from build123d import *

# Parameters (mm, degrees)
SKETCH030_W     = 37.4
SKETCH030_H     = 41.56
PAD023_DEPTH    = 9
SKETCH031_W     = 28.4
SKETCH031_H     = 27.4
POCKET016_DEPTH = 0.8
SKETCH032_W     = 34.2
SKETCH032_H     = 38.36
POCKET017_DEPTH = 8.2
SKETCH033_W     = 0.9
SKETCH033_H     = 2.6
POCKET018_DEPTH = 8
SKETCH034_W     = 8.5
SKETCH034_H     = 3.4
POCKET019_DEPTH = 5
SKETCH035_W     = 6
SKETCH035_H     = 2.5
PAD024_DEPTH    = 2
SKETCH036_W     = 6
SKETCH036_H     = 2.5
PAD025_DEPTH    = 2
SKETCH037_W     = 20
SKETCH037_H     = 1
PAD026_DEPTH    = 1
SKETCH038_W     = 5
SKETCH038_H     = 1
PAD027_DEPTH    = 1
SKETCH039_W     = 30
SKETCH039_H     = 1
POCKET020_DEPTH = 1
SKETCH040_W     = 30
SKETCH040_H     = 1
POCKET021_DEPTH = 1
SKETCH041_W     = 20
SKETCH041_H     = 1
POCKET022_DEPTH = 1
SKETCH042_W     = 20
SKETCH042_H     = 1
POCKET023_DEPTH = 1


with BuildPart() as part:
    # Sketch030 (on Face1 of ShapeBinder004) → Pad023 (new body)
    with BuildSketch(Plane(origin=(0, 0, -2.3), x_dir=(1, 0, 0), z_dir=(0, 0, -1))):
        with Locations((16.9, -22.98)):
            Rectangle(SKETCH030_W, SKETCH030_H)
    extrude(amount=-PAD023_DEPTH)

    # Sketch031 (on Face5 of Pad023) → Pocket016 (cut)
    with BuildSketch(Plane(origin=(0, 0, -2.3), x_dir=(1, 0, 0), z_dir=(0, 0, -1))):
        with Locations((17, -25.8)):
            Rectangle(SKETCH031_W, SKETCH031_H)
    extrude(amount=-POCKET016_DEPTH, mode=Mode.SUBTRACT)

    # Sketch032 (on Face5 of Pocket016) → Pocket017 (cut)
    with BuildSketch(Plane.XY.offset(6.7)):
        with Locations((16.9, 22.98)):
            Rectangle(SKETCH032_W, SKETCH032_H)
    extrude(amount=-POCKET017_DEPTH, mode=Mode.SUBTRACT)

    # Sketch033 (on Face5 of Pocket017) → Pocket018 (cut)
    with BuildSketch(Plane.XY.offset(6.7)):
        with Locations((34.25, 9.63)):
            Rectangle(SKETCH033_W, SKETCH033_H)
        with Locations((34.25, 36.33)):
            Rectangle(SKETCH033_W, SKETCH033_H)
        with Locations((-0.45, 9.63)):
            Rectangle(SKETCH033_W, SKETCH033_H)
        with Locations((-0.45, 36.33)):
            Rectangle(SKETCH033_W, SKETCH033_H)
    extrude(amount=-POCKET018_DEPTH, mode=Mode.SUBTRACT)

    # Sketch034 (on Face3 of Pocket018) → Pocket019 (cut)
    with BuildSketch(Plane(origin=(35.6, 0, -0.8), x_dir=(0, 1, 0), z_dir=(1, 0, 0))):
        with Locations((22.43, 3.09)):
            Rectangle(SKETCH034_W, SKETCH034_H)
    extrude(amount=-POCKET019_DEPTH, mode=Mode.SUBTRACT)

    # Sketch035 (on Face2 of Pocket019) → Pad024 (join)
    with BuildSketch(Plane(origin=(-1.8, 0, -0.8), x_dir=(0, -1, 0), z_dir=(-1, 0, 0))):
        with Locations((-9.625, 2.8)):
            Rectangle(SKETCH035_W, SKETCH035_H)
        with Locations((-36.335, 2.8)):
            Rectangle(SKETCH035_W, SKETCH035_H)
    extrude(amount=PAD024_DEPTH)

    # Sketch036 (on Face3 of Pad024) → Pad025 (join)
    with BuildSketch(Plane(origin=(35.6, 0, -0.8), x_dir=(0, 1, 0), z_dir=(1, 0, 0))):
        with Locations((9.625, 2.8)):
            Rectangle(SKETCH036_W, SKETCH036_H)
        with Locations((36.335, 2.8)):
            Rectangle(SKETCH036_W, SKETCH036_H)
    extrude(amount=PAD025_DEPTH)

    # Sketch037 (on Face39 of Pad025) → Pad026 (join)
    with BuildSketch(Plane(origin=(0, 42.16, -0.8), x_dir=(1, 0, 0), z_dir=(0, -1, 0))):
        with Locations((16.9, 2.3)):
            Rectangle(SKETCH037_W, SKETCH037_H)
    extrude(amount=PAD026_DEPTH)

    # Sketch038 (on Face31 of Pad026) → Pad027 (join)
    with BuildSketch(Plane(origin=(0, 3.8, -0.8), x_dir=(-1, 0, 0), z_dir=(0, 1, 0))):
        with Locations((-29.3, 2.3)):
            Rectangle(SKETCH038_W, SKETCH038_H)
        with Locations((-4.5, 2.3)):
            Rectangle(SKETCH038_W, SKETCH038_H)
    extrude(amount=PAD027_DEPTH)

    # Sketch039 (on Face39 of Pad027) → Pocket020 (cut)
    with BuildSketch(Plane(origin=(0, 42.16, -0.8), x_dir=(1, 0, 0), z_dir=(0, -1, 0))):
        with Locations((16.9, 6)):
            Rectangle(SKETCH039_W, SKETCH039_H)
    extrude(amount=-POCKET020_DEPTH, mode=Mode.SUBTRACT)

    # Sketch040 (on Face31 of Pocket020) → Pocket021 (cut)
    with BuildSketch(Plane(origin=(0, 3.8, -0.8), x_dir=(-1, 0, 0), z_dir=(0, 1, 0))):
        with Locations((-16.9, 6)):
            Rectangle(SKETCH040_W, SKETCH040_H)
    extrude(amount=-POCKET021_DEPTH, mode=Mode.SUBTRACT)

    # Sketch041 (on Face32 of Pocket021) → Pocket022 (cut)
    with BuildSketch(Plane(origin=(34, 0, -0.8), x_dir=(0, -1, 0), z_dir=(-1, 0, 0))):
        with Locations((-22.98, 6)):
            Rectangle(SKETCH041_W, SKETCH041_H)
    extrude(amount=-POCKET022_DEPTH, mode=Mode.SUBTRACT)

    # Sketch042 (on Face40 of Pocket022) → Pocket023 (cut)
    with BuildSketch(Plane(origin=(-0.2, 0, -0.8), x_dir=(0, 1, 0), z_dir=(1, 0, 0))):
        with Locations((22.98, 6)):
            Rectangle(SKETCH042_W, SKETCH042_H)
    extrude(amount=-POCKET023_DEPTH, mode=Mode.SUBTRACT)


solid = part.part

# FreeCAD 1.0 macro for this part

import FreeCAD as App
import Part
import Sketcher
from FreeCAD import Vector


def add_polygon(sketch, points):
    """Adds a closed chain of lines whose ends are joined by coincident constraints."""
    first, n = sketch.GeometryCount, len(points)
    for a, b in zip(points, points[1:] + points[:1]):
        sketch.addGeometry(Part.LineSegment(App.Vector(*a, 0), App.Vector(*b, 0)), False)
    for i in range(n):
        sketch.addConstraint(Sketcher.Constraint("Coincident", first + i, 2, first + (i + 1) % n, 1))

doc = App.newDocument("Part")
params = doc.addObject("Spreadsheet::Sheet", "Params")
for row, (alias, value) in enumerate([
    ("sketch1_width", "37.4 mm"),
    ("sketch1_height", "41.56 mm"),
    ("pad1_length", "9 mm"),
    ("sketch2_width", "28.4 mm"),
    ("sketch2_height", "27.4 mm"),
    ("pocket1_length", "0.8 mm"),
    ("sketch3_width", "34.2 mm"),
    ("sketch3_height", "38.36 mm"),
    ("pocket2_length", "8.2 mm"),
    ("sketch4_width", "0.9 mm"),
    ("sketch4_height", "2.6 mm"),
    ("pocket3_length", "8 mm"),
    ("sketch5_width", "8.5 mm"),
    ("sketch5_height", "3.4 mm"),
    ("pocket4_length", "5 mm"),
    ("sketch6_width", "6 mm"),
    ("sketch6_height", "2.5 mm"),
    ("pad2_length", "2 mm"),
    ("sketch7_width", "6 mm"),
    ("sketch7_height", "2.5 mm"),
    ("pad3_length", "2 mm"),
    ("sketch8_width", "20 mm"),
    ("sketch8_height", "1 mm"),
    ("pad4_length", "1 mm"),
    ("sketch9_width", "5 mm"),
    ("sketch9_height", "1 mm"),
    ("pad5_length", "1 mm"),
    ("sketch10_width", "30 mm"),
    ("sketch10_height", "1 mm"),
    ("pocket5_length", "1 mm"),
    ("sketch11_width", "30 mm"),
    ("sketch11_height", "1 mm"),
    ("pocket6_length", "1 mm"),
    ("sketch12_width", "20 mm"),
    ("sketch12_height", "1 mm"),
    ("pocket7_length", "1 mm"),
    ("sketch13_width", "20 mm"),
    ("sketch13_height", "1 mm"),
    ("pocket8_length", "1 mm"),
], start=1):
    params.set(f"A{row}", alias)
    params.set(f"B{row}", "=" + value)
    params.setAlias(f"B{row}", alias)

body = doc.addObject("PartDesign::Body", "Body")

# Sketch on XY plane
sketch1 = body.newObject("Sketcher::SketchObject", "Sketch")
sketch1.AttachmentSupport = (doc.getObject("XY_Plane"), [""])
sketch1.MapMode = "FlatFace"
sketch1.AttachmentOffset = App.Placement(Vector(0, 0, -2.3), App.Rotation())
add_polygon(sketch1, [(-2, 2), (-2, 44), (36, 44), (36, 2)])  # lines 0-3
sketch1.addConstraint([
    Sketcher.Constraint("Vertical", 0),
    Sketcher.Constraint("Horizontal", 1),
    Sketcher.Constraint("Vertical", 2),
    Sketcher.Constraint("Horizontal", 3),
    Sketcher.Constraint("DistanceX", 1, 1, 1, 2, 37.4),
    Sketcher.Constraint("DistanceY", 0, 1, 0, 2, 41.56),
    Sketcher.Constraint("DistanceX", 0, 2, -1, 1, 1.8),
    Sketcher.Constraint("DistanceY", -1, 1, 2, 2, 2.2),
])
sketch1.setExpression("Constraints[8]", "Params.sketch1_width")
sketch1.setExpression("Constraints[9]", "Params.sketch1_height")
pad1 = body.newObject("PartDesign::Pad", "Pad")
pad1.Profile = sketch1
pad1.setExpression("Length", "Params.pad1_length")

# Sketch on XY plane
sketch2 = body.newObject("Sketcher::SketchObject", "Sketch001")
sketch2.AttachmentSupport = (doc.getObject("XY_Plane"), [""])
sketch2.MapMode = "FlatFace"
sketch2.AttachmentOffset = App.Placement(Vector(0, 0, -2.3), App.Rotation())
add_polygon(sketch2, [(3, 12), (3, 40), (31, 40), (31, 12)])  # lines 0-3
sketch2.addConstraint([
    Sketcher.Constraint("Vertical", 0),
    Sketcher.Constraint("Horizontal", 1),
    Sketcher.Constraint("Vertical", 2),
    Sketcher.Constraint("Horizontal", 3),
    Sketcher.Constraint("DistanceX", 1, 1, 1, 2, 28.4),
    Sketcher.Constraint("DistanceY", 0, 1, 0, 2, 27.4),
    Sketcher.Constraint("DistanceX", -1, 1, 0, 2, 2.8),
    Sketcher.Constraint("DistanceY", -1, 1, 0, 2, 39.5),
])
sketch2.setExpression("Constraints[8]", "Params.sketch2_width")
sketch2.setExpression("Constraints[9]", "Params.sketch2_height")
pocket1 = body.newObject("PartDesign::Pocket", "Pocket")
pocket1.Profile = sketch2
pocket1.setExpression("Length", "Params.pocket1_length")
pocket1.Reversed = True

# Sketch on XY plane
sketch3 = body.newObject("Sketcher::SketchObject", "Sketch002")
sketch3.AttachmentSupport = (doc.getObject("XY_Plane"), [""])
sketch3.MapMode = "FlatFace"
sketch3.AttachmentOffset = App.Placement(Vector(0, 0, 6.7), App.Rotation())
add_polygon(sketch3, [(0, 42), (0, 4), (34, 4), (34, 42)])  # lines 0-3
sketch3.addConstraint([
    Sketcher.Constraint("Vertical", 0),
    Sketcher.Constraint("Horizontal", 1),
    Sketcher.Constraint("Vertical", 2),
    Sketcher.Constraint("Horizontal", 3),
    Sketcher.Constraint("DistanceX", 1, 1, 1, 2, 34.2),
    Sketcher.Constraint("DistanceX", -1, 1, 1, 2, 34.0),
    Sketcher.Constraint("DistanceY", 0, 2, 0, 1, 38.36),
    Sketcher.Constraint("DistanceY", -1, 1, 0, 2, 3.8),
])
sketch3.setExpression("Constraints[8]", "Params.sketch3_width")
sketch3.setExpression("Constraints[10]", "Params.sketch3_height")
pocket2 = body.newObject("PartDesign::Pocket", "Pocket001")
pocket2.Profile = sketch3
pocket2.setExpression("Length", "Params.pocket2_length")

# Sketch on XY plane
sketch4 = body.newObject("Sketcher::SketchObject", "Sketch003")
sketch4.AttachmentSupport = (doc.getObject("XY_Plane"), [""])
sketch4.MapMode = "FlatFace"
sketch4.AttachmentOffset = App.Placement(Vector(0, 0, 6.7), App.Rotation())
add_polygon(sketch4, [(33.8, 10.9), (33.8, 8.3), (34.7, 8.3), (34.7, 10.9)])  # lines 0-3
add_polygon(sketch4, [(33.8, 37.6), (33.8, 35), (34.7, 35), (34.7, 37.6)])  # lines 4-7
add_polygon(sketch4, [(-0.9, 10.9), (-0.9, 8.3), (0, 8.3), (0, 10.9)])  # lines 8-11
add_polygon(sketch4, [(-0.9, 37.6), (-0.9, 35), (0, 35), (0, 37.6)])  # lines 12-15
sketch4.addConstraint([
    Sketcher.Constraint("Vertical", 0),
    Sketcher.Constraint("Horizontal", 1),
    Sketcher.Constraint("Vertical", 2),
    Sketcher.Constraint("Horizontal", 3),
    Sketcher.Constraint("Vertical", 4),
    Sketcher.Constraint("Horizontal", 5),
    Sketcher.Constraint("Vertical", 6),
    Sketcher.Constraint("Horizontal", 7),
    Sketcher.Constraint("Vertical", 8),
    Sketcher.Constraint("Horizontal", 9),
    Sketcher.Constraint("Vertical", 10),
    Sketcher.Constraint("Horizontal", 11),
    Sketcher.Constraint("Vertical", 12),
    Sketcher.Constraint("Horizontal", 13),
    Sketcher.Constraint("Vertical", 14),
    Sketcher.Constraint("Horizontal", 15),
    Sketcher.Constraint("PointOnObject", 9, 2, -2),
    Sketcher.Constraint("PointOnObject", 13, 2, -2),
    Sketcher.Constraint("Horizontal", 1, 2, 8, 2),
    Sketcher.Constraint("Horizontal", 3, 2, 10, 2),
    Sketcher.Constraint("Horizontal", 5, 2, 12, 2),
    Sketcher.Constraint("Horizontal", 7, 2, 14, 2),
    Sketcher.Constraint("Vertical", 3, 2, 4, 2),
    Sketcher.Constraint("Vertical", 2, 2, 5, 2),
    Sketcher.Constraint("Vertical", 11, 2, 12, 2),
    Sketcher.Constraint("Equal", 7, 9),
    Sketcher.Constraint("Equal", 2, 4),
    Sketcher.Constraint("DistanceX", 1, 1, 1, 2, 0.9),
    Sketcher.Constraint("DistanceY", 0, 2, 0, 1, 2.6),
    Sketcher.Constraint("DistanceX", -1, 1, 0, 2, 33.8),
    Sketcher.Constraint("DistanceY", 3, 2, 4, 2, 24.1),
    Sketcher.Constraint("DistanceY", -1, 1, 0, 2, 8.33),
])
sketch4.setExpression("Constraints[43]", "Params.sketch4_width")
sketch4.setExpression("Constraints[44]", "Params.sketch4_height")
pocket3 = body.newObject("PartDesign::Pocket", "Pocket002")
pocket3.Profile = sketch4
pocket3.setExpression("Length", "Params.pocket3_length")

# Sketch on YZ plane
sketch5 = body.newObject("Sketcher::SketchObject", "Sketch004")
sketch5.AttachmentSupport = (doc.getObject("YZ_Plane"), [""])
sketch5.MapMode = "FlatFace"
sketch5.AttachmentOffset = App.Placement(Vector(0, 0, 35.6), App.Rotation())
add_polygon(sketch5, [(18.2, 4), (18.2, 0.6), (26.7, 0.6), (26.7, 4)])  # lines 0-3
sketch5.addConstraint([
    Sketcher.Constraint("Vertical", 0),
    Sketcher.Constraint("Horizontal", 1),
    Sketcher.Constraint("Vertical", 2),
    Sketcher.Constraint("Horizontal", 3),
    Sketcher.Constraint("DistanceX", 1, 1, 1, 2, 8.5),
    Sketcher.Constraint("DistanceY", 0, 2, 0, 1, 3.4),
    Sketcher.Constraint("DistanceX", -1, 1, 0, 2, 18.18),
    Sketcher.Constraint("DistanceY", -1, 1, 0, 2, 0.59),
])
sketch5.setExpression("Constraints[8]", "Params.sketch5_width")
sketch5.setExpression("Constraints[9]", "Params.sketch5_height")
pocket4 = body.newObject("PartDesign::Pocket", "Pocket003")
pocket4.Profile = sketch5
pocket4.setExpression("Length", "Params.pocket4_length")

# Sketch on YZ plane
sketch6 = body.newObject("Sketcher::SketchObject", "Sketch005")
sketch6.AttachmentSupport = (doc.getObject("YZ_Plane"), [""])
sketch6.MapMode = "FlatFace"
sketch6.AttachmentOffset = App.Placement(Vector(0, 0, -1.8), App.Rotation())
add_polygon(sketch6, [(12.6, 3.2), (12.6, 0.8), (6.6, 0.8), (6.6, 3.2)])  # lines 0-3
add_polygon(sketch6, [(39.3, 3.2), (39.3, 0.8), (33.3, 0.8), (33.3, 3.2)])  # lines 4-7
sketch6.addConstraint([
    Sketcher.Constraint("Vertical", 0),
    Sketcher.Constraint("Horizontal", 1),
    Sketcher.Constraint("Vertical", 2),
    Sketcher.Constraint("Horizontal", 3),
    Sketcher.Constraint("Vertical", 4),
    Sketcher.Constraint("Horizontal", 5),
    Sketcher.Constraint("Vertical", 6),
    Sketcher.Constraint("Horizontal", 7),
    Sketcher.Constraint("Horizontal", 1, 2, 4, 2),
    Sketcher.Constraint("Horizontal", 3, 2, 6, 2),
    Sketcher.Constraint("Equal", 3, 5),
    Sketcher.Constraint("DistanceX", 1, 2, 1, 1, 6.0),
    Sketcher.Constraint("DistanceY", 0, 2, 0, 1, 2.5),
    Sketcher.Constraint("DistanceY", -1, 1, 0, 2, 0.75),
    Sketcher.Constraint("DistanceX", 0, 2, 4, 2, 26.71),
    Sketcher.Constraint("DistanceX", -1, 1, 0, 2, 12.625),
])
sketch6.setExpression("Constraints[19]", "Params.sketch6_width")
sketch6.setExpression("Constraints[20]", "Params.sketch6_height")
pad2 = body.newObject("PartDesign::Pad", "Pad001")
pad2.Profile = sketch6
pad2.setExpression("Length", "Params.pad2_length")
pad2.Reversed = True

# Sketch on YZ plane
sketch7 = body.newObject("Sketcher::SketchObject", "Sketch006")
sketch7.AttachmentSupport = (doc.getObject("YZ_Plane"), [""])
sketch7.MapMode = "FlatFace"
sketch7.AttachmentOffset = App.Placement(Vector(0, 0, 35.6), App.Rotation())
add_polygon(sketch7, [(6.6, 3.2), (6.6, 0.8), (12.6, 0.8), (12.6, 3.2)])  # lines 0-3
add_polygon(sketch7, [(33.3, 3.2), (33.3, 0.8), (39.3, 0.8), (39.3, 3.2)])  # lines 4-7
sketch7.addConstraint([
    Sketcher.Constraint("Vertical", 0),
    Sketcher.Constraint("Horizontal", 1),
    Sketcher.Constraint("Vertical", 2),
    Sketcher.Constraint("Horizontal", 3),
    Sketcher.Constraint("Vertical", 4),
    Sketcher.Constraint("Horizontal", 5),
    Sketcher.Constraint("Vertical", 6),
    Sketcher.Constraint("Horizontal", 7),
    Sketcher.Constraint("Horizontal", 1, 2, 4, 2),
    Sketcher.Constraint("Horizontal", 3, 2, 6, 2),
    Sketcher.Constraint("Equal", 3, 5),
    Sketcher.Constraint("DistanceX", 1, 1, 1, 2, 6.0),
    Sketcher.Constraint("DistanceY", 0, 2, 0, 1, 2.5),
    Sketcher.Constraint("DistanceY", -1, 1, 0, 2, 0.75),
    Sketcher.Constraint("DistanceX", 1, 2, 4, 2, 20.71),
    Sketcher.Constraint("DistanceX", -1, 1, 0, 2, 6.625),
])
sketch7.setExpression("Constraints[19]", "Params.sketch7_width")
sketch7.setExpression("Constraints[20]", "Params.sketch7_height")
pad3 = body.newObject("PartDesign::Pad", "Pad002")
pad3.Profile = sketch7
pad3.setExpression("Length", "Params.pad3_length")

# Sketch on XZ plane
sketch8 = body.newObject("Sketcher::SketchObject", "Sketch007")
sketch8.AttachmentSupport = (doc.getObject("XZ_Plane"), [""])
sketch8.MapMode = "FlatFace"
sketch8.AttachmentOffset = App.Placement(Vector(0, 0, -42.16), App.Rotation())
add_polygon(sketch8, [(6.9, 2), (6.9, 1), (26.9, 1), (26.9, 2)])  # lines 0-3
sketch8.addConstraint([
    Sketcher.Constraint("Vertical", 0),
    Sketcher.Constraint("Horizontal", 1),
    Sketcher.Constraint("Vertical", 2),
    Sketcher.Constraint("Horizontal", 3),
    Sketcher.Constraint("DistanceX", 1, 1, 1, 2, 20.0),
    Sketcher.Constraint("DistanceY", 0, 2, 0, 1, 1.0),
    Sketcher.Constraint("DistanceY", -1, 1, 0, 2, 1.0),
    Sketcher.Constraint("DistanceX", -1, 1, 0, 2, 6.9),
])
sketch8.setExpression("Constraints[8]", "Params.sketch8_width")
sketch8.setExpression("Constraints[9]", "Params.sketch8_height")
pad4 = body.newObject("PartDesign::Pad", "Pad003")
pad4.Profile = sketch8
pad4.setExpression("Length", "Params.pad4_length")

# Sketch on XZ plane
sketch9 = body.newObject("Sketcher::SketchObject", "Sketch008")
sketch9.AttachmentSupport = (doc.getObject("XZ_Plane"), [""])
sketch9.MapMode = "FlatFace"
sketch9.AttachmentOffset = App.Placement(Vector(0, 0, -3.8), App.Rotation())
add_polygon(sketch9, [(31.8, 2), (31.8, 1), (26.8, 1), (26.8, 2)])  # lines 0-3
add_polygon(sketch9, [(7, 2), (7, 1), (2, 1), (2, 2)])  # lines 4-7
sketch9.addConstraint([
    Sketcher.Constraint("Vertical", 0),
    Sketcher.Constraint("Horizontal", 1),
    Sketcher.Constraint("Vertical", 2),
    Sketcher.Constraint("Horizontal", 3),
    Sketcher.Constraint("Vertical", 4),
    Sketcher.Constraint("Horizontal", 5),
    Sketcher.Constraint("Vertical", 6),
    Sketcher.Constraint("Horizontal", 7),
    Sketcher.Constraint("Horizontal", 1, 2, 4, 2),
    Sketcher.Constraint("Horizontal", 3, 2, 6, 2),
    Sketcher.Constraint("Equal", 3, 5),
    Sketcher.Constraint("DistanceX", 1, 2, 1, 1, 5.0),
    Sketcher.Constraint("DistanceY", 0, 2, 0, 1, 1.0),
    Sketcher.Constraint("DistanceY", -1, 1, 0, 2, 1.0),
    Sketcher.Constraint("DistanceX", -1, 1, 4, 2, 7.0),
    Sketcher.Constraint("DistanceX", -1, 1, 0, 2, 31.8),
])
sketch9.setExpression("Constraints[19]", "Params.sketch9_width")
sketch9.setExpression("Constraints[20]", "Params.sketch9_height")
pad5 = body.newObject("PartDesign::Pad", "Pad004")
pad5.Profile = sketch9
pad5.setExpression("Length", "Params.pad5_length")
pad5.Reversed = True

# Sketch on XZ plane
sketch10 = body.newObject("Sketcher::SketchObject", "Sketch009")
sketch10.AttachmentSupport = (doc.getObject("XZ_Plane"), [""])
sketch10.MapMode = "FlatFace"
sketch10.AttachmentOffset = App.Placement(Vector(0, 0, -42.16), App.Rotation())
add_polygon(sketch10, [(1.9, 5.7), (1.9, 4.7), (31.9, 4.7), (31.9, 5.7)])  # lines 0-3
sketch10.addConstraint([
    Sketcher.Constraint("Vertical", 0),
    Sketcher.Constraint("Horizontal", 1),
    Sketcher.Constraint("Vertical", 2),
    Sketcher.Constraint("Horizontal", 3),
    Sketcher.Constraint("DistanceX", 1, 1, 1, 2, 30.0),
    Sketcher.Constraint("DistanceY", 0, 2, 0, 1, 1.0),
    Sketcher.Constraint("DistanceX", -1, 1, 0, 2, 1.9),
    Sketcher.Constraint("DistanceY", -1, 1, 0, 2, 4.7),
])
sketch10.setExpression("Constraints[8]", "Params.sketch10_width")
sketch10.setExpression("Constraints[9]", "Params.sketch10_height")
pocket5 = body.newObject("PartDesign::Pocket", "Pocket004")
pocket5.Profile = sketch10
pocket5.setExpression("Length", "Params.pocket5_length")

# Sketch on XZ plane
sketch11 = body.newObject("Sketcher::SketchObject", "Sketch010")
sketch11.AttachmentSupport = (doc.getObject("XZ_Plane"), [""])
sketch11.MapMode = "FlatFace"
sketch11.AttachmentOffset = App.Placement(Vector(0, 0, -3.8), App.Rotation())
add_polygon(sketch11, [(31.9, 5.7), (31.9, 4.7), (1.9, 4.7), (1.9, 5.7)])  # lines 0-3
sketch11.addConstraint([
    Sketcher.Constraint("Vertical", 0),
    Sketcher.Constraint("Horizontal", 1),
    Sketcher.Constraint("Vertical", 2),
    Sketcher.Constraint("Horizontal", 3),
    Sketcher.Constraint("DistanceX", 1, 2, 1, 1, 30.0),
    Sketcher.Constraint("DistanceY", 0, 2, 0, 1, 1.0),
    Sketcher.Constraint("DistanceX", -1, 1, 0, 2, 31.9),
    Sketcher.Constraint("DistanceY", -1, 1, 0, 2, 4.7),
])
sketch11.setExpression("Constraints[8]", "Params.sketch11_width")
sketch11.setExpression("Constraints[9]", "Params.sketch11_height")
pocket6 = body.newObject("PartDesign::Pocket", "Pocket005")
pocket6.Profile = sketch11
pocket6.setExpression("Length", "Params.pocket6_length")
pocket6.Reversed = True

# Sketch on YZ plane
sketch12 = body.newObject("Sketcher::SketchObject", "Sketch011")
sketch12.AttachmentSupport = (doc.getObject("YZ_Plane"), [""])
sketch12.MapMode = "FlatFace"
sketch12.AttachmentOffset = App.Placement(Vector(0, 0, 34), App.Rotation())
add_polygon(sketch12, [(33, 5.7), (33, 4.7), (13, 4.7), (13, 5.7)])  # lines 0-3
sketch12.addConstraint([
    Sketcher.Constraint("Vertical", 0),
    Sketcher.Constraint("Horizontal", 1),
    Sketcher.Constraint("Vertical", 2),
    Sketcher.Constraint("Horizontal", 3),
    Sketcher.Constraint("DistanceX", 1, 2, 1, 1, 20.0),
    Sketcher.Constraint("DistanceY", 0, 2, 0, 1, 1.0),
    Sketcher.Constraint("DistanceY", -1, 1, 0, 2, 4.7),
    Sketcher.Constraint("DistanceX", -1, 1, 0, 2, 32.98),
])
sketch12.setExpression("Constraints[8]", "Params.sketch12_width")
sketch12.setExpression("Constraints[9]", "Params.sketch12_height")
pocket7 = body.newObject("PartDesign::Pocket", "Pocket006")
pocket7.Profile = sketch12
pocket7.setExpression("Length", "Params.pocket7_length")
pocket7.Reversed = True

# Sketch on YZ plane
sketch13 = body.newObject("Sketcher::SketchObject", "Sketch012")
sketch13.AttachmentSupport = (doc.getObject("YZ_Plane"), [""])
sketch13.MapMode = "FlatFace"
sketch13.AttachmentOffset = App.Placement(Vector(0, 0, -0.2), App.Rotation())
add_polygon(sketch13, [(13, 5.7), (13, 4.7), (33, 4.7), (33, 5.7)])  # lines 0-3
sketch13.addConstraint([
    Sketcher.Constraint("Vertical", 0),
    Sketcher.Constraint("Horizontal", 1),
    Sketcher.Constraint("Vertical", 2),
    Sketcher.Constraint("Horizontal", 3),
    Sketcher.Constraint("DistanceX", 1, 1, 1, 2, 20.0),
    Sketcher.Constraint("DistanceY", 0, 2, 0, 1, 1.0),
    Sketcher.Constraint("DistanceY", -1, 1, 0, 2, 4.7),
    Sketcher.Constraint("DistanceX", -1, 1, 0, 2, 12.98),
])
sketch13.setExpression("Constraints[8]", "Params.sketch13_width")
sketch13.setExpression("Constraints[9]", "Params.sketch13_height")
pocket8 = body.newObject("PartDesign::Pocket", "Pocket007")
pocket8.Profile = sketch13
pocket8.setExpression("Length", "Params.pocket8_length")

doc.recompute()
